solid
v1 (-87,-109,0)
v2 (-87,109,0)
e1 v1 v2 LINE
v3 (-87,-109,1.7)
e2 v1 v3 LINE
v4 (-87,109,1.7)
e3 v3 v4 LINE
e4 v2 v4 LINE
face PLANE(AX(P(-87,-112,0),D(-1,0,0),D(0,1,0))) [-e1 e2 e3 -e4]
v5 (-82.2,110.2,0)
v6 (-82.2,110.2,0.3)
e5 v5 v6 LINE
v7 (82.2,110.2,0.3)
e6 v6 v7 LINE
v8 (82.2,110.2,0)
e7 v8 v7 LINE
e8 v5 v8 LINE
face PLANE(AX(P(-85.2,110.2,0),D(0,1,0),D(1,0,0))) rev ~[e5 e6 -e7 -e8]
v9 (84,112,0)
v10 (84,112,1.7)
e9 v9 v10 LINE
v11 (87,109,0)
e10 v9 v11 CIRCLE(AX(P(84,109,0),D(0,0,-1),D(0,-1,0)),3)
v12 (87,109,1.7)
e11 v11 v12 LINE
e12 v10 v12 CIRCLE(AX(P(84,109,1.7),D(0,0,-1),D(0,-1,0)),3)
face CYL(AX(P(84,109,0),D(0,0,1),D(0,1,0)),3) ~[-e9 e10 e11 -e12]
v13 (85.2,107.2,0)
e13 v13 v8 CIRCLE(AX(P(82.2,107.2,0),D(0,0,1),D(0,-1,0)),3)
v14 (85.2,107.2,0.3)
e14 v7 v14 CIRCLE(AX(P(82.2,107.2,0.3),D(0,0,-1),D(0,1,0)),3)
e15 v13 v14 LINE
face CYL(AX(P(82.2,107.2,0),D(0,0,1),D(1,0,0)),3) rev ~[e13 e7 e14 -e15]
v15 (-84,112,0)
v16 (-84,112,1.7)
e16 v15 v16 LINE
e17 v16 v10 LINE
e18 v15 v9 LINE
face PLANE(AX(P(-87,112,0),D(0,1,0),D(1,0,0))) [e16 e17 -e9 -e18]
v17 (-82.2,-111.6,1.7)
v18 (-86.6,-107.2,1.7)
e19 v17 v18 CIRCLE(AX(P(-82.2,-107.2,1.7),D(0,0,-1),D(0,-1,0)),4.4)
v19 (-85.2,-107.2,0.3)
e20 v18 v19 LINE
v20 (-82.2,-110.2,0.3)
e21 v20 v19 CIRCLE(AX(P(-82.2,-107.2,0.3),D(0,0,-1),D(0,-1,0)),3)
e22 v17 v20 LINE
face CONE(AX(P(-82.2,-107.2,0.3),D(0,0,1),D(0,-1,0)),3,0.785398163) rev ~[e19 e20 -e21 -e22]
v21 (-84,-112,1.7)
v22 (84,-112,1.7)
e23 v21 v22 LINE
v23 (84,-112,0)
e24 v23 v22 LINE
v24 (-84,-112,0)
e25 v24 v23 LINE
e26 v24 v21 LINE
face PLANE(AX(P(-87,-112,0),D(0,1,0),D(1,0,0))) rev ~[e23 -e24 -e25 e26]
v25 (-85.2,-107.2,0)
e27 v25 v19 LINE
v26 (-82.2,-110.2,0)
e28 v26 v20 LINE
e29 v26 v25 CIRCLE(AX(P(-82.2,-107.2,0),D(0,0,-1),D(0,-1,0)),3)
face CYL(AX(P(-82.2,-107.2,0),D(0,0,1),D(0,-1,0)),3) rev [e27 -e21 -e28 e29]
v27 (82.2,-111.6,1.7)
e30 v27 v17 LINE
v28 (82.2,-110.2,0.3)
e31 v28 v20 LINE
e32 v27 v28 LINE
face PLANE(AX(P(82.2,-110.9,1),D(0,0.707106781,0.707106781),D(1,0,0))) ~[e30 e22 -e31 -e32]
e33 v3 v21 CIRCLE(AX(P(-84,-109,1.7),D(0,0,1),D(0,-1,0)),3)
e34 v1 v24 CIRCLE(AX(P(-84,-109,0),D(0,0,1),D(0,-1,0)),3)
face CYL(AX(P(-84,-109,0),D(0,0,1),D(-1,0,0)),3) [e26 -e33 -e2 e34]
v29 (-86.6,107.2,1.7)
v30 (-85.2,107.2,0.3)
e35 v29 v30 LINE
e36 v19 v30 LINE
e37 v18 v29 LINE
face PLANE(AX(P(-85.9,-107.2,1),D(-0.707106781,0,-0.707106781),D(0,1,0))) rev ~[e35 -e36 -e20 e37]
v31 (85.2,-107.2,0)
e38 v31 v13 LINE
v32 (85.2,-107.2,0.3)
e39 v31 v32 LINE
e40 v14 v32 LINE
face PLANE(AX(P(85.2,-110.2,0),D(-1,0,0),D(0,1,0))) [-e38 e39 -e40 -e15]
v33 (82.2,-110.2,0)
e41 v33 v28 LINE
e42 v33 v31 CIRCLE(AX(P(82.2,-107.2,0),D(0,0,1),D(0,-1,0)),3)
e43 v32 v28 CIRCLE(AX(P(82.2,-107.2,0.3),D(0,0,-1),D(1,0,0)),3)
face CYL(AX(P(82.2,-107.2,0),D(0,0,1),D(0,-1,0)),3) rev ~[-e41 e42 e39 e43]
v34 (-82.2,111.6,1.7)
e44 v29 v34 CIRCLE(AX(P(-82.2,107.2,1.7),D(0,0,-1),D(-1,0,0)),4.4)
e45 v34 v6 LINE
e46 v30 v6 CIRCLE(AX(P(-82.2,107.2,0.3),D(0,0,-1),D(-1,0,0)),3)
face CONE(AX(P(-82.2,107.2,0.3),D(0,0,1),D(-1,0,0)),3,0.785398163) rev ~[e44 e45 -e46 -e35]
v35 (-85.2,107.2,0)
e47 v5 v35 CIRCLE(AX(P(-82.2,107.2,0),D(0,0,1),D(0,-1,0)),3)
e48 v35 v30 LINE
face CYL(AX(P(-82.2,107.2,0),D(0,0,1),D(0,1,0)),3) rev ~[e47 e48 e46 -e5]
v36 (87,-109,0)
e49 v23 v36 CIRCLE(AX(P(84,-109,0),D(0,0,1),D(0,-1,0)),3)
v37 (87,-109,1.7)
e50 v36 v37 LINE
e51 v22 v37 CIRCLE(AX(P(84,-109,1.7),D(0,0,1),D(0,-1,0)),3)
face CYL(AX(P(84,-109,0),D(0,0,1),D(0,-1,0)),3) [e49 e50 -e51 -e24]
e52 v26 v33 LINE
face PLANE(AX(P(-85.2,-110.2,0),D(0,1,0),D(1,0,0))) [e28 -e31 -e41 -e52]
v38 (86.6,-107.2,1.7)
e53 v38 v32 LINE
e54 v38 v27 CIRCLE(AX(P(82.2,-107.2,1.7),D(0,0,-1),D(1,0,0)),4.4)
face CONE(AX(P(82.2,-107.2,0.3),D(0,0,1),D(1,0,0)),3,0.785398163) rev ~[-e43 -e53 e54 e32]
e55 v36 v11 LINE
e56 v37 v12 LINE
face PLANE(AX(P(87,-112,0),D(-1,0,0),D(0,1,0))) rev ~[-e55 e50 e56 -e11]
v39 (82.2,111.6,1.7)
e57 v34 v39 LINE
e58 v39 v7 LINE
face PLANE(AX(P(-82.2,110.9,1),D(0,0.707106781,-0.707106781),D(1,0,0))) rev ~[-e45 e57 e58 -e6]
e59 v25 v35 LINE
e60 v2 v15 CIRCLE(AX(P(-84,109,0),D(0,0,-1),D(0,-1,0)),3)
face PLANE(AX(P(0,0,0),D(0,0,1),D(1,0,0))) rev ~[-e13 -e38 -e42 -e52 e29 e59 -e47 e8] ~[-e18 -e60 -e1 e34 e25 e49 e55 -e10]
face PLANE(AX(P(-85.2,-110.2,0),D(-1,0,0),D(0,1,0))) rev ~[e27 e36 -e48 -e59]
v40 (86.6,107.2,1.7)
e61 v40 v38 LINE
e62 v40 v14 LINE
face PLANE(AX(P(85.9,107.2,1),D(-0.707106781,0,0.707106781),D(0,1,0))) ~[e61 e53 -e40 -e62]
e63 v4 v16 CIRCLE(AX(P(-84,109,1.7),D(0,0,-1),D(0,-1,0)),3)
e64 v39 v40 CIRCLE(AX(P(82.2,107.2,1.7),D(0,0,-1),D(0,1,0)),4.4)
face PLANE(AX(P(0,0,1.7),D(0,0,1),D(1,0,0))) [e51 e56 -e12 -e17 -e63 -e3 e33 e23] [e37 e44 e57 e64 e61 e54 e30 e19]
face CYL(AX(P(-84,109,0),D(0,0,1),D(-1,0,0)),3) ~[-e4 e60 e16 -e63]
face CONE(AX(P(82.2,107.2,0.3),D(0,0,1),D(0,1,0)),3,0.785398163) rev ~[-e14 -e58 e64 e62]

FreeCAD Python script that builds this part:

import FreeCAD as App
import Part
import Sketcher

V = App.Vector
Q = App.Units.Quantity


def edges_at(feature, points):
    """Names of the edges that pass closest to the given points."""
    edges = feature.Shape.Edges
    near = lambda p: min(range(len(edges)), key=lambda i: edges[i].distToShape(Part.Vertex(*p))[0])
    return sorted({f"Edge{near(p) + 1}" for p in points})


def add_polygon(sketch, points):
    """Adds a closed chain of lines whose ends are joined by coincident constraints."""
    first, n = sketch.GeometryCount, len(points)
    for a, b in zip(points, points[1:] + points[:1]):
        sketch.addGeometry(Part.LineSegment(App.Vector(*a, 0), App.Vector(*b, 0)), False)
    for i in range(n):
        sketch.addConstraint(Sketcher.Constraint("Coincident", first + i, 2, first + (i + 1) % n, 1))

doc = App.newDocument("Part")
body = doc.addObject("PartDesign::Body", "Body")

sketch1 = body.newObject("Sketcher::SketchObject", "Sketch")
sketch1.AttachmentSupport = (doc.getObject("XY_Plane"), [""])
sketch1.MapMode = "FlatFace"
add_polygon(sketch1, [(-87, 112), (-87, -112), (87, -112), (87, 112)])
add_polygon(sketch1, [(85.2, -110.2), (-85.2, -110.2), (-85.2, 110.2), (85.2, 110.2)])
sketch1.addConstraint(Sketcher.Constraint("Vertical", 0))
sketch1.addConstraint(Sketcher.Constraint("Horizontal", 1))
sketch1.addConstraint(Sketcher.Constraint("Vertical", 2))
sketch1.addConstraint(Sketcher.Constraint("Horizontal", 3))
sketch1.addConstraint(Sketcher.Constraint("Horizontal", 4))
sketch1.addConstraint(Sketcher.Constraint("Vertical", 5))
sketch1.addConstraint(Sketcher.Constraint("Horizontal", 6))
sketch1.addConstraint(Sketcher.Constraint("Vertical", 7))
sketch1.addConstraint(Sketcher.Constraint("Symmetric", 0, 2, 2, 2, -1, 1))
sketch1.addConstraint(Sketcher.Constraint("Symmetric", 4, 2, 6, 2, -1, 1))
sketch1.addConstraint(Sketcher.Constraint("DistanceX", 1, 1, 1, 2, Q("174 mm")))
sketch1.addConstraint(Sketcher.Constraint("DistanceY", 0, 2, 0, 1, Q("224 mm")))
sketch1.addConstraint(Sketcher.Constraint("DistanceX", 4, 2, 4, 1, Q("170.4 mm")))
sketch1.addConstraint(Sketcher.Constraint("DistanceY", 5, 1, 5, 2, Q("220.4 mm")))
pad1 = body.newObject("PartDesign::Pad", "Pad")
pad1.Profile = sketch1
pad1.Length = 1.7
doc.recompute()

fillet = body.newObject("PartDesign::Fillet", "Fillet")
fillet.Base = (pad1, edges_at(pad1, [
    (-85.2, -110.2, 0.85),
    (-87, -112, 0.85),
    (87, -112, 0.85),
    (85.2, -110.2, 0.85),
    (87, 112, 0.85),
    (85.2, 110.2, 0.85),
    (-85.2, 110.2, 0.85),
    (-87, 112, 0.85),
]))
fillet.Radius = 3
doc.recompute()

chamfer = body.newObject("PartDesign::Chamfer", "Chamfer")
chamfer.Base = (fillet, edges_at(fillet, [(-84.321, -109.321, 1.7)]))
chamfer.Size = 1.4

doc.recompute()
